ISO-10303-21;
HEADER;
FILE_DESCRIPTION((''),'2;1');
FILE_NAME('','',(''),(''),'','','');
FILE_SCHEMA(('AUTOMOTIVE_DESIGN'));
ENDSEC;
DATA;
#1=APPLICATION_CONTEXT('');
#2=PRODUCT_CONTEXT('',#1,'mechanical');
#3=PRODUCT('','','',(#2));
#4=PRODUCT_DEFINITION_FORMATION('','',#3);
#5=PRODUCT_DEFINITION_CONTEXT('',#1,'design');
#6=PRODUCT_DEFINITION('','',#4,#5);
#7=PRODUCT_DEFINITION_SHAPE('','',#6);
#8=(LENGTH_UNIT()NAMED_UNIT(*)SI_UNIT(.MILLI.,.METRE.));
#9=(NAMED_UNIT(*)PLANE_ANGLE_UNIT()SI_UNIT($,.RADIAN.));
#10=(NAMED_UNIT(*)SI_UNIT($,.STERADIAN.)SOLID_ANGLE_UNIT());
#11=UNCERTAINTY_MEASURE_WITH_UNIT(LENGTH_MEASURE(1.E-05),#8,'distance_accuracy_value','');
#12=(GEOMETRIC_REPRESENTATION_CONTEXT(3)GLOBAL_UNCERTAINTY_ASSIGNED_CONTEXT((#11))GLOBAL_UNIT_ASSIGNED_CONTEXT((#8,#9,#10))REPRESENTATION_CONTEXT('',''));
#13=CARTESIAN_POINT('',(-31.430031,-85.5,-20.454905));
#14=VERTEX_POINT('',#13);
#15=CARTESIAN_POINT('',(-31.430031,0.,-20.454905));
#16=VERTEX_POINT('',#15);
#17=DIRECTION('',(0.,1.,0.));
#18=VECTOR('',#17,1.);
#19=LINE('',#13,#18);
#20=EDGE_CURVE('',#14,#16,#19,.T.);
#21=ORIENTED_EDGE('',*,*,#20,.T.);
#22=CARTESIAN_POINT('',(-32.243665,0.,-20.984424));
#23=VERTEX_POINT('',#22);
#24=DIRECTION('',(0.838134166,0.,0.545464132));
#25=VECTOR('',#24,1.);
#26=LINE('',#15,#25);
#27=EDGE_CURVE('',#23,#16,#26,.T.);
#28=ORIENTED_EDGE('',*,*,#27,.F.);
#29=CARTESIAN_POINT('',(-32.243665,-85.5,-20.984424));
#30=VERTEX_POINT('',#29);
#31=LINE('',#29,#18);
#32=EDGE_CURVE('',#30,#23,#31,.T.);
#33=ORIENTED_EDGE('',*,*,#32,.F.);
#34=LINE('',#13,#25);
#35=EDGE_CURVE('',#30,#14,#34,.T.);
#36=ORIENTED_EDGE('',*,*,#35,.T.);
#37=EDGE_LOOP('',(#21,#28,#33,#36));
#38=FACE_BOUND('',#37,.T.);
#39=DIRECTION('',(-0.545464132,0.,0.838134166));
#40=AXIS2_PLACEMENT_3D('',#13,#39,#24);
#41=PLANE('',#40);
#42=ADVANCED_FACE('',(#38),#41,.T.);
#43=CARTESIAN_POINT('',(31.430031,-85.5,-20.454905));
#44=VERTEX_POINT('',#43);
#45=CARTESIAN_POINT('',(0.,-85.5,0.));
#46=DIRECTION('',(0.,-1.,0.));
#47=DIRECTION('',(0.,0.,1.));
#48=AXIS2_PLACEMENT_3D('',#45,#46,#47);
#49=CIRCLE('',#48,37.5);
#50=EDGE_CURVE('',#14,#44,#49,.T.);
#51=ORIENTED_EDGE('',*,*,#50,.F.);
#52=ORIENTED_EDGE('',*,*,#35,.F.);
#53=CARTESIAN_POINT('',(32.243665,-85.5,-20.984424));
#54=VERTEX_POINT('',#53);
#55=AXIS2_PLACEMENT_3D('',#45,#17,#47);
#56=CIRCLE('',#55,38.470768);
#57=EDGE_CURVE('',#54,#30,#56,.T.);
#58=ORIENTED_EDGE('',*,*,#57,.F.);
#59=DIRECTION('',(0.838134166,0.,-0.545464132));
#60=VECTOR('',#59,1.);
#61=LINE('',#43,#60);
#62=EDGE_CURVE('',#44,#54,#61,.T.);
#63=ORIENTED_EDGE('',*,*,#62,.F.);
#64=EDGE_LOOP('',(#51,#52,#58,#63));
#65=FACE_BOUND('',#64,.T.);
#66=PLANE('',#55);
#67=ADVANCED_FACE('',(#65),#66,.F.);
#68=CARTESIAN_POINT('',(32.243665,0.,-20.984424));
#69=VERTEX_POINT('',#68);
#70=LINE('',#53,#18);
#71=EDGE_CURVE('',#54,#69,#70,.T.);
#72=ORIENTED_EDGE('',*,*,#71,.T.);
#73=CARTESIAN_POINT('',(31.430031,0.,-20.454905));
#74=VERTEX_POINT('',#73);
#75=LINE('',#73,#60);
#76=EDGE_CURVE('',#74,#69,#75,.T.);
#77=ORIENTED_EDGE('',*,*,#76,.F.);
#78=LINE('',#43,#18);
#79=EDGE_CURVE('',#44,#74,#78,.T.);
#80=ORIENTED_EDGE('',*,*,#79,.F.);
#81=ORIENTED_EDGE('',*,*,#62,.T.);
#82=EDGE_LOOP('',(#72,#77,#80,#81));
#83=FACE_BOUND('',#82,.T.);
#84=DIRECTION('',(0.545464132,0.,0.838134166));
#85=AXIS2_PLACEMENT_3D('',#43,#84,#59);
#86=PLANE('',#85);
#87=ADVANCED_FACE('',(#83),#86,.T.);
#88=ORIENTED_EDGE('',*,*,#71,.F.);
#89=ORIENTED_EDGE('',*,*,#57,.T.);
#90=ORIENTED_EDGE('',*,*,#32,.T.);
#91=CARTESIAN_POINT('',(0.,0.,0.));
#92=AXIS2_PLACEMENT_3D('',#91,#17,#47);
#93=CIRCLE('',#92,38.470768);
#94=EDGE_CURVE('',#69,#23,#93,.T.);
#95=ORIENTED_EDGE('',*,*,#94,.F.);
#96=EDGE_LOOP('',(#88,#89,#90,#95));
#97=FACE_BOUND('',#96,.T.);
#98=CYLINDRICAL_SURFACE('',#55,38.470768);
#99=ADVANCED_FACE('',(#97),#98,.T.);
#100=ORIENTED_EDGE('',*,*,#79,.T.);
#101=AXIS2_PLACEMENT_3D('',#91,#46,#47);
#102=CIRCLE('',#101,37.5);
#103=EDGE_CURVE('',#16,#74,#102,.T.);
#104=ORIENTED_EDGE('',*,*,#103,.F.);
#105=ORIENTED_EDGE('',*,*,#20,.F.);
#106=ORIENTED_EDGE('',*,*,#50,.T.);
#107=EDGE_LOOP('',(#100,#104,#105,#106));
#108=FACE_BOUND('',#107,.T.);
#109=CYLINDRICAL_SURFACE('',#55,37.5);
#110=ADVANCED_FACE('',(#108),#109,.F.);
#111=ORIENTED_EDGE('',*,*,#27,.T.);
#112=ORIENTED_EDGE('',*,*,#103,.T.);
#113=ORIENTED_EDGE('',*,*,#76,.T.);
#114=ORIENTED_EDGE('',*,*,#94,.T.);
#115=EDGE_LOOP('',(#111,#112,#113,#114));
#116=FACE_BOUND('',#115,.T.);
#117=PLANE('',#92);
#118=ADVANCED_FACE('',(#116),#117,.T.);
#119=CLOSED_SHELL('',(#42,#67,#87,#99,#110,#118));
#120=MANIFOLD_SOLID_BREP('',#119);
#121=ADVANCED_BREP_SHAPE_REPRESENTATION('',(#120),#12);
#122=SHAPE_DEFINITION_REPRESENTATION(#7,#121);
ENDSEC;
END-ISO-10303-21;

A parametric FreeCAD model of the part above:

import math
import FreeCAD as App
import Part
import Sketcher
Q = App.Units.Quantity

doc = App.newDocument("Part")
params = doc.addObject("Spreadsheet::Sheet", "Params")
for row, (alias, value) in enumerate([
    ("sketch1_radius", "37.5 mm"),
    ("pad1_length", "85.5 mm"),
], start=1):
    params.set(f"A{row}", alias)
    params.set(f"B{row}", "=" + value)
    params.setAlias(f"B{row}", alias)

body = doc.addObject("PartDesign::Body", "Body")

# Sketch on XZ plane
sketch1 = doc.addObject("Sketcher::SketchObject", "Sketch")
body.addObject(sketch1)
sketch1.AttachmentSupport = (doc.XZ_Plane, [""])
sketch1.MapMode = "FlatFace"
sketch1.addGeometry([
    Part.LineSegment(App.Vector(-32.243665, -20.984424, 0), App.Vector(-31.430031, -20.454905, 0)),
    Part.ArcOfCircle(Part.Circle(App.Vector(0, 0, 0), App.Vector(0, 0, 1), 37.5), math.radians(-146.943613), math.radians(-33.056387)),
    Part.LineSegment(App.Vector(31.430031, -20.454905, 0), App.Vector(32.243665, -20.984424, 0)),
    Part.ArcOfCircle(Part.Circle(App.Vector(0, 0, 0), App.Vector(0, 0, 1), 38.470768), math.radians(-146.943613), math.radians(-33.056387)),
], False)
sketch1.addConstraint([
    Sketcher.Constraint("Coincident", 0, 2, 1, 1),
    Sketcher.Constraint("Coincident", 1, 2, 2, 1),
    Sketcher.Constraint("Coincident", 2, 2, 3, 2),
    Sketcher.Constraint("Coincident", 3, 1, 0, 1),
    Sketcher.Constraint("Coincident", 1, 3, -1, 1),
    Sketcher.Constraint("Coincident", 3, 3, -1, 1),
    Sketcher.Constraint("Horizontal", 0, 2, 1, 2),
    Sketcher.Constraint("Horizontal", 2, 2, 3, 1),
    Sketcher.Constraint("Radius", 1, Q("37.5 mm")),
    Sketcher.Constraint("Radius", 3, Q("38.470768 mm")),
    Sketcher.Constraint("DistanceX", 0, 2, -1, 1, Q("31.430031 mm")),
    Sketcher.Constraint("DistanceY", 2, 2, 1, 2, Q("0.529519 mm")),
])
sketch1.setExpression("Constraints[8]", "Params.sketch1_radius")
pad1 = doc.addObject("PartDesign::Pad", "Pad")
body.addObject(pad1)
pad1.Profile = sketch1
pad1.setExpression("Length", "Params.pad1_length")

doc.recompute()
